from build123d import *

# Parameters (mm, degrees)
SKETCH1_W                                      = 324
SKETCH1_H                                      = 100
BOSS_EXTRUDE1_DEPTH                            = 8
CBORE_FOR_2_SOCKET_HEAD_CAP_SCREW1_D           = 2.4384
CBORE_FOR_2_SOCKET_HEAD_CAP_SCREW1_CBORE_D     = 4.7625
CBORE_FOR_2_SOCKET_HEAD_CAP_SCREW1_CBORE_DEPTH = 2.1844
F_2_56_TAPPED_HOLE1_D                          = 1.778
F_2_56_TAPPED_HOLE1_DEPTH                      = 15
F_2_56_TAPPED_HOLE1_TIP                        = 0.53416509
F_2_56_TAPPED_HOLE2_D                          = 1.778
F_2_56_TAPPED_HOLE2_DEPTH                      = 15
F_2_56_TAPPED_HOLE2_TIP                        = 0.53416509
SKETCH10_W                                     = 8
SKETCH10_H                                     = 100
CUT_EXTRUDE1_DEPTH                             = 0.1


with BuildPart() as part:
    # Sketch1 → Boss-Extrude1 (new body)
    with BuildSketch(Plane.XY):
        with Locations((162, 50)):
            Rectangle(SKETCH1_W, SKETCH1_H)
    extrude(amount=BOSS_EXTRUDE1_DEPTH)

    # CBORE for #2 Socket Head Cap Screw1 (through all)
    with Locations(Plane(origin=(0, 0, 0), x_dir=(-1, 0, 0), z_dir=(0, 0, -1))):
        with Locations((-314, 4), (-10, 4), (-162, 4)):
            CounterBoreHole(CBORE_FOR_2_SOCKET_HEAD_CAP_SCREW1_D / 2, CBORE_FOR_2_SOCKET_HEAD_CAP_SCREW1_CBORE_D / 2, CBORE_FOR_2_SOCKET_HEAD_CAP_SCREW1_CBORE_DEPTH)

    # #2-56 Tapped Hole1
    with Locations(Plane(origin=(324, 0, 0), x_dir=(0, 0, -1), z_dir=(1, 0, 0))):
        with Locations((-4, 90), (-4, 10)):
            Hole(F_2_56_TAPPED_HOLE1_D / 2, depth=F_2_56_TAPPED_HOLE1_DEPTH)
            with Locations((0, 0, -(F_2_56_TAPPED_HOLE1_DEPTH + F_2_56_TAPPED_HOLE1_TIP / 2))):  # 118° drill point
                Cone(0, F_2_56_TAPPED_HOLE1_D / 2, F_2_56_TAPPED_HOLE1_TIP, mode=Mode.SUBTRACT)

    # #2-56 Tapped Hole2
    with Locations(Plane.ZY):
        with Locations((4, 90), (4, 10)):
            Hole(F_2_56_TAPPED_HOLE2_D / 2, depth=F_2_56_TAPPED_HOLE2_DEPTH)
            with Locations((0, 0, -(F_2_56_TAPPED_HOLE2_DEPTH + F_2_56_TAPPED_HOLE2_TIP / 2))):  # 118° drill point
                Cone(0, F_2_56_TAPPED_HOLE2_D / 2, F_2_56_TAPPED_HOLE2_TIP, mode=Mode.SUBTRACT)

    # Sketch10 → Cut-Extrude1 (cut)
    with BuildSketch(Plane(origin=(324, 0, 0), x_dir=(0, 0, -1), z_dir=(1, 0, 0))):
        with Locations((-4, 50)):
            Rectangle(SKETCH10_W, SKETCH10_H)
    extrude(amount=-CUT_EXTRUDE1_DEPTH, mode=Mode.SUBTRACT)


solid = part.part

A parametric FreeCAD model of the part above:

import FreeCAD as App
import Part
import Sketcher
from FreeCAD import Vector


def add_polygon(sketch, points):
    """Adds a closed chain of lines whose ends are joined by coincident constraints."""
    first, n = sketch.GeometryCount, len(points)
    for a, b in zip(points, points[1:] + points[:1]):
        sketch.addGeometry(Part.LineSegment(App.Vector(*a, 0), App.Vector(*b, 0)), False)
    for i in range(n):
        sketch.addConstraint(Sketcher.Constraint("Coincident", first + i, 2, first + (i + 1) % n, 1))

doc = App.newDocument("Part")
body = doc.addObject("PartDesign::Body", "Body")

# Sketch on XY plane
sketch1 = body.newObject("Sketcher::SketchObject", "Sketch")
sketch1.AttachmentSupport = (doc.getObject("XY_Plane"), [""])
sketch1.MapMode = "FlatFace"
add_polygon(sketch1, [(0, 100), (0, 0), (324, 0), (324, 100)])  # lines 0-3
sketch1.addConstraint(Sketcher.Constraint("Vertical", 0))
sketch1.addConstraint(Sketcher.Constraint("Horizontal", 1))
sketch1.addConstraint(Sketcher.Constraint("Vertical", 2))
sketch1.addConstraint(Sketcher.Constraint("Horizontal", 3))
sketch1.addConstraint(Sketcher.Constraint("Coincident", 0, 2, -1, 1))
sketch1.addConstraint(Sketcher.Constraint("DistanceX", 1, 1, 1, 2, 324.0))
sketch1.addConstraint(Sketcher.Constraint("DistanceY", 0, 2, 0, 1, 100.0))
pad1 = body.newObject("PartDesign::Pad", "Pad")
pad1.Profile = sketch1
pad1.Length = 8

# Sketch on XY plane
sketch2 = body.newObject("Sketcher::SketchObject", "Sketch001")
sketch2.AttachmentSupport = (doc.getObject("XY_Plane"), [""])
sketch2.MapMode = "FlatFace"
sketch2.addGeometry(Part.Circle(Vector(314, 4, 0), Vector(0, 0, 1), 1.2), False)
sketch2.addGeometry(Part.Circle(Vector(10, 4, 0), Vector(0, 0, 1), 1.2), False)
sketch2.addGeometry(Part.Circle(Vector(162, 4, 0), Vector(0, 0, 1), 1.2), False)
sketch2.addConstraint(Sketcher.Constraint("Equal", 0, 1))
sketch2.addConstraint(Sketcher.Constraint("Equal", 1, 2))
sketch2.addConstraint(Sketcher.Constraint("Horizontal", 0, 3, 1, 3))
sketch2.addConstraint(Sketcher.Constraint("Horizontal", 1, 3, 2, 3))
sketch2.addConstraint(Sketcher.Constraint("DistanceX", -1, 1, 0, 3, 314.0))
sketch2.addConstraint(Sketcher.Constraint("DistanceY", -1, 1, 0, 3, 4.0))
sketch2.addConstraint(Sketcher.Constraint("DistanceX", -1, 1, 1, 3, 10.0))
sketch2.addConstraint(Sketcher.Constraint("DistanceX", -1, 1, 2, 3, 162.0))
sketch2.addConstraint(Sketcher.Constraint("Diameter", 0, 2.4384))
doc.recompute()
hole = body.newObject("PartDesign::Hole", "Hole")
hole.Profile = sketch2
hole.ThreadType = "None"
hole.Diameter = 2.4384
hole.DepthType = "ThroughAll"
hole.HoleCutType = "Counterbore"
hole.HoleCutDiameter = 4.7625
hole.HoleCutDepth = 2.1844
hole.Reversed = True

# Sketch on YZ plane
sketch3 = body.newObject("Sketcher::SketchObject", "Sketch002")
sketch3.AttachmentSupport = (doc.getObject("YZ_Plane"), [""])
sketch3.MapMode = "FlatFace"
sketch3.AttachmentOffset = App.Placement(Vector(0, 0, 324), App.Rotation())
sketch3.addGeometry(Part.Circle(Vector(90, 4, 0), Vector(0, 0, 1), 0.9), False)
sketch3.addGeometry(Part.Circle(Vector(10, 4, 0), Vector(0, 0, 1), 0.9), False)
sketch3.addConstraint(Sketcher.Constraint("Equal", 0, 1))
sketch3.addConstraint(Sketcher.Constraint("Horizontal", 0, 3, 1, 3))
sketch3.addConstraint(Sketcher.Constraint("Diameter", 0, 1.778))
sketch3.addConstraint(Sketcher.Constraint("DistanceX", -1, 1, 0, 3, 90.0))
sketch3.addConstraint(Sketcher.Constraint("DistanceY", -1, 1, 0, 3, 4.0))
sketch3.addConstraint(Sketcher.Constraint("DistanceX", -1, 1, 1, 3, 10.0))
doc.recompute()
hole2 = body.newObject("PartDesign::Hole", "Hole001")
hole2.Profile = sketch3
hole2.ThreadType = "None"
hole2.Diameter = 1.778
hole2.DepthType = "Dimension"
hole2.Depth = 15
hole2.DrillPoint = "Angled"
hole2.DrillPointAngle = 118

# Sketch on YZ plane
sketch4 = body.newObject("Sketcher::SketchObject", "Sketch003")
sketch4.AttachmentSupport = (doc.getObject("YZ_Plane"), [""])
sketch4.MapMode = "FlatFace"
sketch4.addGeometry(Part.Circle(Vector(90, 4, 0), Vector(0, 0, 1), 0.9), False)
sketch4.addGeometry(Part.Circle(Vector(10, 4, 0), Vector(0, 0, 1), 0.9), False)
sketch4.addConstraint(Sketcher.Constraint("Equal", 0, 1))
sketch4.addConstraint(Sketcher.Constraint("Horizontal", 0, 3, 1, 3))
sketch4.addConstraint(Sketcher.Constraint("Diameter", 0, 1.778))
sketch4.addConstraint(Sketcher.Constraint("DistanceX", -1, 1, 0, 3, 90.0))
sketch4.addConstraint(Sketcher.Constraint("DistanceY", -1, 1, 0, 3, 4.0))
sketch4.addConstraint(Sketcher.Constraint("DistanceX", -1, 1, 1, 3, 10.0))
doc.recompute()
hole3 = body.newObject("PartDesign::Hole", "Hole002")
hole3.Profile = sketch4
hole3.ThreadType = "None"
hole3.Diameter = 1.778
hole3.DepthType = "Dimension"
hole3.Depth = 15
hole3.DrillPoint = "Angled"
hole3.DrillPointAngle = 118
hole3.Reversed = True

# Sketch on YZ plane
sketch5 = body.newObject("Sketcher::SketchObject", "Sketch004")
sketch5.AttachmentSupport = (doc.getObject("YZ_Plane"), [""])
sketch5.MapMode = "FlatFace"
sketch5.AttachmentOffset = App.Placement(Vector(0, 0, 324), App.Rotation())
add_polygon(sketch5, [(100, 8), (0, 8), (0, 0), (100, 0)])  # lines 0-3
sketch5.addConstraint(Sketcher.Constraint("Horizontal", 0))
sketch5.addConstraint(Sketcher.Constraint("Vertical", 1))
sketch5.addConstraint(Sketcher.Constraint("Horizontal", 2))
sketch5.addConstraint(Sketcher.Constraint("Vertical", 3))
sketch5.addConstraint(Sketcher.Constraint("Coincident", 1, 2, -1, 1))
sketch5.addConstraint(Sketcher.Constraint("DistanceX", 0, 2, 0, 1, 100.0))
sketch5.addConstraint(Sketcher.Constraint("DistanceY", 1, 2, 1, 1, 8.0))
pocket1 = body.newObject("PartDesign::Pocket", "Pocket")
pocket1.Profile = sketch5
pocket1.Length = 0.1

doc.recompute()
